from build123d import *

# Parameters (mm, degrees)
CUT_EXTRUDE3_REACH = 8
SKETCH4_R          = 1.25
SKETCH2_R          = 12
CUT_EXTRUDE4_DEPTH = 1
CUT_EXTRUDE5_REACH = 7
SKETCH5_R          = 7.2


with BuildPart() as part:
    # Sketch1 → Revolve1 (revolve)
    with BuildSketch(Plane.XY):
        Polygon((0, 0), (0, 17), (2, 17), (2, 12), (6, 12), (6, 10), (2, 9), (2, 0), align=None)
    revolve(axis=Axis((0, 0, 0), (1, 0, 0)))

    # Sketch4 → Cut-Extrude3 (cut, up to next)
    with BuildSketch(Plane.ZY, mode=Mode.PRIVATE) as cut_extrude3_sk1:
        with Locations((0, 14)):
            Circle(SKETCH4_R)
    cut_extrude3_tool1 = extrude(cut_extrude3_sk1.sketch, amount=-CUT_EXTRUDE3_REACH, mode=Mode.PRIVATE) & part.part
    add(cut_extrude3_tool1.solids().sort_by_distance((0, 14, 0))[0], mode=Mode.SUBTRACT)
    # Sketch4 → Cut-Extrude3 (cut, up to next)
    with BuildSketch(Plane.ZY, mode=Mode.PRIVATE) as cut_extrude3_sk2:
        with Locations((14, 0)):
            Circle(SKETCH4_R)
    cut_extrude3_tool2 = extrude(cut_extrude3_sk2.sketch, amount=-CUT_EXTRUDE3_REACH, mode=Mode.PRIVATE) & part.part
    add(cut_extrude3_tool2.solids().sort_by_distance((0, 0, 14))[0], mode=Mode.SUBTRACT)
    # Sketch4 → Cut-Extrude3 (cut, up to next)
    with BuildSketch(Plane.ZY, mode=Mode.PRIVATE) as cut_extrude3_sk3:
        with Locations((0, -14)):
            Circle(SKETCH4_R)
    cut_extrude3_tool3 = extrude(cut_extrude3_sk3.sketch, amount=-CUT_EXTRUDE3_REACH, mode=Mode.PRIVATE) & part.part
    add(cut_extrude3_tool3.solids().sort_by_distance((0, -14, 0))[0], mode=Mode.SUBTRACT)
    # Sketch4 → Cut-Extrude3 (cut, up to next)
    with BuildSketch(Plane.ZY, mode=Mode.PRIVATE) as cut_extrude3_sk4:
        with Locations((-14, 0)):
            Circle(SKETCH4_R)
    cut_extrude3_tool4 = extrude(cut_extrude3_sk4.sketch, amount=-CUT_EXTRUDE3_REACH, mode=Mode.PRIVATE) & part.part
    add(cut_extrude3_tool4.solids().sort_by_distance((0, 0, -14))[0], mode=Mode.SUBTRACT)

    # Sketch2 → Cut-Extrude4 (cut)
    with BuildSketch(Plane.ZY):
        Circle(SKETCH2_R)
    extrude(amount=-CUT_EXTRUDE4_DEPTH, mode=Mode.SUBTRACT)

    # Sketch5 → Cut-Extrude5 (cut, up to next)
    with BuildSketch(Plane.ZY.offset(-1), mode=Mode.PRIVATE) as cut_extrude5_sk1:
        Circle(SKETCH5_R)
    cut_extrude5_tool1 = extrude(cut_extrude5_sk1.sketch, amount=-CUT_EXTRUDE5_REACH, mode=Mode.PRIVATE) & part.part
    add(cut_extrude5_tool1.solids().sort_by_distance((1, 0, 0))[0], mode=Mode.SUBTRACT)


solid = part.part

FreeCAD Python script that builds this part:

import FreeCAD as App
import Part
import Sketcher
from FreeCAD import Vector
Q = App.Units.Quantity


def add_polygon(sketch, points):
    """Adds a closed chain of lines whose ends are joined by coincident constraints."""
    first, n = sketch.GeometryCount, len(points)
    for a, b in zip(points, points[1:] + points[:1]):
        sketch.addGeometry(Part.LineSegment(App.Vector(*a, 0), App.Vector(*b, 0)), False)
    for i in range(n):
        sketch.addConstraint(Sketcher.Constraint("Coincident", first + i, 2, first + (i + 1) % n, 1))

doc = App.newDocument("Part")
body = doc.addObject("PartDesign::Body", "Body")

# Sketch on XY plane
sketch1 = doc.addObject("Sketcher::SketchObject", "Sketch")
body.addObject(sketch1)
sketch1.AttachmentSupport = (doc.XY_Plane, [""])
sketch1.MapMode = "FlatFace"
add_polygon(sketch1, [(0, 17), (0, 0), (2, 0), (2, 9), (6, 10), (6, 12), (2, 12), (2, 17)])  # lines 0-7
sketch1.addConstraint(Sketcher.Constraint("Vertical", 0))
sketch1.addConstraint(Sketcher.Constraint("Horizontal", 1))
sketch1.addConstraint(Sketcher.Constraint("Vertical", 2))
sketch1.addConstraint(Sketcher.Constraint("Vertical", 4))
sketch1.addConstraint(Sketcher.Constraint("Horizontal", 5))
sketch1.addConstraint(Sketcher.Constraint("Vertical", 6))
sketch1.addConstraint(Sketcher.Constraint("Horizontal", 7))
sketch1.addConstraint(Sketcher.Constraint("Coincident", 0, 2, -1, 1))
sketch1.addConstraint(Sketcher.Constraint("Vertical", 2, 2, 5, 2))
sketch1.addConstraint(Sketcher.Constraint("Equal", 7, 4))
sketch1.addConstraint(Sketcher.Constraint("DistanceX", 1, 1, 1, 2, Q("2 mm")))
sketch1.addConstraint(Sketcher.Constraint("DistanceX", 5, 2, 5, 1, Q("4 mm")))
sketch1.addConstraint(Sketcher.Constraint("DistanceY", 0, 2, 0, 1, Q("17 mm")))
sketch1.addConstraint(Sketcher.Constraint("DistanceY", 2, 1, 2, 2, Q("9 mm")))
sketch1.addConstraint(Sketcher.Constraint("DistanceY", 6, 1, 6, 2, Q("5 mm")))
revolution = doc.addObject("PartDesign::Revolution", "Revolution")
body.addObject(revolution)
revolution.Profile = sketch1
revolution.ReferenceAxis = (sketch1, ["H_Axis"])
revolution.Angle = 360

# Sketch on YZ plane
sketch2 = doc.addObject("Sketcher::SketchObject", "Sketch001")
body.addObject(sketch2)
sketch2.AttachmentSupport = (doc.YZ_Plane, [""])
sketch2.MapMode = "FlatFace"
sketch2.addGeometry(Part.Circle(Vector(14, 0, 0), Vector(0, 0, 1), 1.2), False)
sketch2.addConstraint(Sketcher.Constraint("PointOnObject", 0, 3, -1))
sketch2.addConstraint(Sketcher.Constraint("Diameter", 0, Q("2.5 mm")))
sketch2.addConstraint(Sketcher.Constraint("DistanceX", -1, 1, 0, 3, Q("14 mm")))
pocket1 = doc.addObject("PartDesign::Pocket", "Pocket")
body.addObject(pocket1)
pocket1.Profile = sketch2
pocket1.Type = "UpToFirst"
pocket1.Reversed = True

# Sketch on YZ plane
sketch3 = doc.addObject("Sketcher::SketchObject", "Sketch002")
body.addObject(sketch3)
sketch3.AttachmentSupport = (doc.YZ_Plane, [""])
sketch3.MapMode = "FlatFace"
sketch3.addGeometry(Part.Circle(Vector(0, 14, 0), Vector(0, 0, 1), 1.2), False)
sketch3.addConstraint(Sketcher.Constraint("PointOnObject", 0, 3, -2))
sketch3.addConstraint(Sketcher.Constraint("Diameter", 0, Q("2.5 mm")))
sketch3.addConstraint(Sketcher.Constraint("DistanceY", -1, 1, 0, 3, Q("14 mm")))
pocket2 = doc.addObject("PartDesign::Pocket", "Pocket001")
body.addObject(pocket2)
pocket2.Profile = sketch3
pocket2.Type = "UpToFirst"
pocket2.Reversed = True

# Sketch on YZ plane
sketch4 = doc.addObject("Sketcher::SketchObject", "Sketch003")
body.addObject(sketch4)
sketch4.AttachmentSupport = (doc.YZ_Plane, [""])
sketch4.MapMode = "FlatFace"
sketch4.addGeometry(Part.Circle(Vector(-14, 0, 0), Vector(0, 0, 1), 1.2), False)
sketch4.addConstraint(Sketcher.Constraint("PointOnObject", 0, 3, -1))
sketch4.addConstraint(Sketcher.Constraint("Diameter", 0, Q("2.5 mm")))
sketch4.addConstraint(Sketcher.Constraint("DistanceX", 0, 3, -1, 1, Q("14 mm")))
pocket3 = doc.addObject("PartDesign::Pocket", "Pocket002")
body.addObject(pocket3)
pocket3.Profile = sketch4
pocket3.Type = "UpToFirst"
pocket3.Reversed = True

# Sketch on YZ plane
sketch5 = doc.addObject("Sketcher::SketchObject", "Sketch004")
body.addObject(sketch5)
sketch5.AttachmentSupport = (doc.YZ_Plane, [""])
sketch5.MapMode = "FlatFace"
sketch5.addGeometry(Part.Circle(Vector(0, -14, 0), Vector(0, 0, 1), 1.2), False)
sketch5.addConstraint(Sketcher.Constraint("PointOnObject", 0, 3, -2))
sketch5.addConstraint(Sketcher.Constraint("Diameter", 0, Q("2.5 mm")))
sketch5.addConstraint(Sketcher.Constraint("DistanceY", 0, 3, -1, 1, Q("14 mm")))
pocket4 = doc.addObject("PartDesign::Pocket", "Pocket003")
body.addObject(pocket4)
pocket4.Profile = sketch5
pocket4.Type = "UpToFirst"
pocket4.Reversed = True

# Sketch on YZ plane
sketch6 = doc.addObject("Sketcher::SketchObject", "Sketch005")
body.addObject(sketch6)
sketch6.AttachmentSupport = (doc.YZ_Plane, [""])
sketch6.MapMode = "FlatFace"
sketch6.addGeometry(Part.Circle(Vector(0, 0, 0), Vector(0, 0, 1), 12), False)
sketch6.addConstraint(Sketcher.Constraint("Coincident", 0, 3, -1, 1))
sketch6.addConstraint(Sketcher.Constraint("Diameter", 0, Q("24 mm")))
pocket5 = doc.addObject("PartDesign::Pocket", "Pocket004")
body.addObject(pocket5)
pocket5.Profile = sketch6
pocket5.Length = 1
pocket5.Reversed = True

# Sketch on YZ plane
sketch7 = doc.addObject("Sketcher::SketchObject", "Sketch006")
body.addObject(sketch7)
sketch7.AttachmentSupport = (doc.YZ_Plane, [""])
sketch7.MapMode = "FlatFace"
sketch7.AttachmentOffset = App.Placement(Vector(0, 0, 1), App.Rotation())
sketch7.addGeometry(Part.Circle(Vector(0, 0, 0), Vector(0, 0, 1), 7), False)
sketch7.addConstraint(Sketcher.Constraint("Coincident", 0, 3, -1, 1))
sketch7.addConstraint(Sketcher.Constraint("Diameter", 0, Q("14.4 mm")))
pocket6 = doc.addObject("PartDesign::Pocket", "Pocket005")
body.addObject(pocket6)
pocket6.Profile = sketch7
pocket6.Type = "UpToFirst"
pocket6.Reversed = True

doc.recompute()
